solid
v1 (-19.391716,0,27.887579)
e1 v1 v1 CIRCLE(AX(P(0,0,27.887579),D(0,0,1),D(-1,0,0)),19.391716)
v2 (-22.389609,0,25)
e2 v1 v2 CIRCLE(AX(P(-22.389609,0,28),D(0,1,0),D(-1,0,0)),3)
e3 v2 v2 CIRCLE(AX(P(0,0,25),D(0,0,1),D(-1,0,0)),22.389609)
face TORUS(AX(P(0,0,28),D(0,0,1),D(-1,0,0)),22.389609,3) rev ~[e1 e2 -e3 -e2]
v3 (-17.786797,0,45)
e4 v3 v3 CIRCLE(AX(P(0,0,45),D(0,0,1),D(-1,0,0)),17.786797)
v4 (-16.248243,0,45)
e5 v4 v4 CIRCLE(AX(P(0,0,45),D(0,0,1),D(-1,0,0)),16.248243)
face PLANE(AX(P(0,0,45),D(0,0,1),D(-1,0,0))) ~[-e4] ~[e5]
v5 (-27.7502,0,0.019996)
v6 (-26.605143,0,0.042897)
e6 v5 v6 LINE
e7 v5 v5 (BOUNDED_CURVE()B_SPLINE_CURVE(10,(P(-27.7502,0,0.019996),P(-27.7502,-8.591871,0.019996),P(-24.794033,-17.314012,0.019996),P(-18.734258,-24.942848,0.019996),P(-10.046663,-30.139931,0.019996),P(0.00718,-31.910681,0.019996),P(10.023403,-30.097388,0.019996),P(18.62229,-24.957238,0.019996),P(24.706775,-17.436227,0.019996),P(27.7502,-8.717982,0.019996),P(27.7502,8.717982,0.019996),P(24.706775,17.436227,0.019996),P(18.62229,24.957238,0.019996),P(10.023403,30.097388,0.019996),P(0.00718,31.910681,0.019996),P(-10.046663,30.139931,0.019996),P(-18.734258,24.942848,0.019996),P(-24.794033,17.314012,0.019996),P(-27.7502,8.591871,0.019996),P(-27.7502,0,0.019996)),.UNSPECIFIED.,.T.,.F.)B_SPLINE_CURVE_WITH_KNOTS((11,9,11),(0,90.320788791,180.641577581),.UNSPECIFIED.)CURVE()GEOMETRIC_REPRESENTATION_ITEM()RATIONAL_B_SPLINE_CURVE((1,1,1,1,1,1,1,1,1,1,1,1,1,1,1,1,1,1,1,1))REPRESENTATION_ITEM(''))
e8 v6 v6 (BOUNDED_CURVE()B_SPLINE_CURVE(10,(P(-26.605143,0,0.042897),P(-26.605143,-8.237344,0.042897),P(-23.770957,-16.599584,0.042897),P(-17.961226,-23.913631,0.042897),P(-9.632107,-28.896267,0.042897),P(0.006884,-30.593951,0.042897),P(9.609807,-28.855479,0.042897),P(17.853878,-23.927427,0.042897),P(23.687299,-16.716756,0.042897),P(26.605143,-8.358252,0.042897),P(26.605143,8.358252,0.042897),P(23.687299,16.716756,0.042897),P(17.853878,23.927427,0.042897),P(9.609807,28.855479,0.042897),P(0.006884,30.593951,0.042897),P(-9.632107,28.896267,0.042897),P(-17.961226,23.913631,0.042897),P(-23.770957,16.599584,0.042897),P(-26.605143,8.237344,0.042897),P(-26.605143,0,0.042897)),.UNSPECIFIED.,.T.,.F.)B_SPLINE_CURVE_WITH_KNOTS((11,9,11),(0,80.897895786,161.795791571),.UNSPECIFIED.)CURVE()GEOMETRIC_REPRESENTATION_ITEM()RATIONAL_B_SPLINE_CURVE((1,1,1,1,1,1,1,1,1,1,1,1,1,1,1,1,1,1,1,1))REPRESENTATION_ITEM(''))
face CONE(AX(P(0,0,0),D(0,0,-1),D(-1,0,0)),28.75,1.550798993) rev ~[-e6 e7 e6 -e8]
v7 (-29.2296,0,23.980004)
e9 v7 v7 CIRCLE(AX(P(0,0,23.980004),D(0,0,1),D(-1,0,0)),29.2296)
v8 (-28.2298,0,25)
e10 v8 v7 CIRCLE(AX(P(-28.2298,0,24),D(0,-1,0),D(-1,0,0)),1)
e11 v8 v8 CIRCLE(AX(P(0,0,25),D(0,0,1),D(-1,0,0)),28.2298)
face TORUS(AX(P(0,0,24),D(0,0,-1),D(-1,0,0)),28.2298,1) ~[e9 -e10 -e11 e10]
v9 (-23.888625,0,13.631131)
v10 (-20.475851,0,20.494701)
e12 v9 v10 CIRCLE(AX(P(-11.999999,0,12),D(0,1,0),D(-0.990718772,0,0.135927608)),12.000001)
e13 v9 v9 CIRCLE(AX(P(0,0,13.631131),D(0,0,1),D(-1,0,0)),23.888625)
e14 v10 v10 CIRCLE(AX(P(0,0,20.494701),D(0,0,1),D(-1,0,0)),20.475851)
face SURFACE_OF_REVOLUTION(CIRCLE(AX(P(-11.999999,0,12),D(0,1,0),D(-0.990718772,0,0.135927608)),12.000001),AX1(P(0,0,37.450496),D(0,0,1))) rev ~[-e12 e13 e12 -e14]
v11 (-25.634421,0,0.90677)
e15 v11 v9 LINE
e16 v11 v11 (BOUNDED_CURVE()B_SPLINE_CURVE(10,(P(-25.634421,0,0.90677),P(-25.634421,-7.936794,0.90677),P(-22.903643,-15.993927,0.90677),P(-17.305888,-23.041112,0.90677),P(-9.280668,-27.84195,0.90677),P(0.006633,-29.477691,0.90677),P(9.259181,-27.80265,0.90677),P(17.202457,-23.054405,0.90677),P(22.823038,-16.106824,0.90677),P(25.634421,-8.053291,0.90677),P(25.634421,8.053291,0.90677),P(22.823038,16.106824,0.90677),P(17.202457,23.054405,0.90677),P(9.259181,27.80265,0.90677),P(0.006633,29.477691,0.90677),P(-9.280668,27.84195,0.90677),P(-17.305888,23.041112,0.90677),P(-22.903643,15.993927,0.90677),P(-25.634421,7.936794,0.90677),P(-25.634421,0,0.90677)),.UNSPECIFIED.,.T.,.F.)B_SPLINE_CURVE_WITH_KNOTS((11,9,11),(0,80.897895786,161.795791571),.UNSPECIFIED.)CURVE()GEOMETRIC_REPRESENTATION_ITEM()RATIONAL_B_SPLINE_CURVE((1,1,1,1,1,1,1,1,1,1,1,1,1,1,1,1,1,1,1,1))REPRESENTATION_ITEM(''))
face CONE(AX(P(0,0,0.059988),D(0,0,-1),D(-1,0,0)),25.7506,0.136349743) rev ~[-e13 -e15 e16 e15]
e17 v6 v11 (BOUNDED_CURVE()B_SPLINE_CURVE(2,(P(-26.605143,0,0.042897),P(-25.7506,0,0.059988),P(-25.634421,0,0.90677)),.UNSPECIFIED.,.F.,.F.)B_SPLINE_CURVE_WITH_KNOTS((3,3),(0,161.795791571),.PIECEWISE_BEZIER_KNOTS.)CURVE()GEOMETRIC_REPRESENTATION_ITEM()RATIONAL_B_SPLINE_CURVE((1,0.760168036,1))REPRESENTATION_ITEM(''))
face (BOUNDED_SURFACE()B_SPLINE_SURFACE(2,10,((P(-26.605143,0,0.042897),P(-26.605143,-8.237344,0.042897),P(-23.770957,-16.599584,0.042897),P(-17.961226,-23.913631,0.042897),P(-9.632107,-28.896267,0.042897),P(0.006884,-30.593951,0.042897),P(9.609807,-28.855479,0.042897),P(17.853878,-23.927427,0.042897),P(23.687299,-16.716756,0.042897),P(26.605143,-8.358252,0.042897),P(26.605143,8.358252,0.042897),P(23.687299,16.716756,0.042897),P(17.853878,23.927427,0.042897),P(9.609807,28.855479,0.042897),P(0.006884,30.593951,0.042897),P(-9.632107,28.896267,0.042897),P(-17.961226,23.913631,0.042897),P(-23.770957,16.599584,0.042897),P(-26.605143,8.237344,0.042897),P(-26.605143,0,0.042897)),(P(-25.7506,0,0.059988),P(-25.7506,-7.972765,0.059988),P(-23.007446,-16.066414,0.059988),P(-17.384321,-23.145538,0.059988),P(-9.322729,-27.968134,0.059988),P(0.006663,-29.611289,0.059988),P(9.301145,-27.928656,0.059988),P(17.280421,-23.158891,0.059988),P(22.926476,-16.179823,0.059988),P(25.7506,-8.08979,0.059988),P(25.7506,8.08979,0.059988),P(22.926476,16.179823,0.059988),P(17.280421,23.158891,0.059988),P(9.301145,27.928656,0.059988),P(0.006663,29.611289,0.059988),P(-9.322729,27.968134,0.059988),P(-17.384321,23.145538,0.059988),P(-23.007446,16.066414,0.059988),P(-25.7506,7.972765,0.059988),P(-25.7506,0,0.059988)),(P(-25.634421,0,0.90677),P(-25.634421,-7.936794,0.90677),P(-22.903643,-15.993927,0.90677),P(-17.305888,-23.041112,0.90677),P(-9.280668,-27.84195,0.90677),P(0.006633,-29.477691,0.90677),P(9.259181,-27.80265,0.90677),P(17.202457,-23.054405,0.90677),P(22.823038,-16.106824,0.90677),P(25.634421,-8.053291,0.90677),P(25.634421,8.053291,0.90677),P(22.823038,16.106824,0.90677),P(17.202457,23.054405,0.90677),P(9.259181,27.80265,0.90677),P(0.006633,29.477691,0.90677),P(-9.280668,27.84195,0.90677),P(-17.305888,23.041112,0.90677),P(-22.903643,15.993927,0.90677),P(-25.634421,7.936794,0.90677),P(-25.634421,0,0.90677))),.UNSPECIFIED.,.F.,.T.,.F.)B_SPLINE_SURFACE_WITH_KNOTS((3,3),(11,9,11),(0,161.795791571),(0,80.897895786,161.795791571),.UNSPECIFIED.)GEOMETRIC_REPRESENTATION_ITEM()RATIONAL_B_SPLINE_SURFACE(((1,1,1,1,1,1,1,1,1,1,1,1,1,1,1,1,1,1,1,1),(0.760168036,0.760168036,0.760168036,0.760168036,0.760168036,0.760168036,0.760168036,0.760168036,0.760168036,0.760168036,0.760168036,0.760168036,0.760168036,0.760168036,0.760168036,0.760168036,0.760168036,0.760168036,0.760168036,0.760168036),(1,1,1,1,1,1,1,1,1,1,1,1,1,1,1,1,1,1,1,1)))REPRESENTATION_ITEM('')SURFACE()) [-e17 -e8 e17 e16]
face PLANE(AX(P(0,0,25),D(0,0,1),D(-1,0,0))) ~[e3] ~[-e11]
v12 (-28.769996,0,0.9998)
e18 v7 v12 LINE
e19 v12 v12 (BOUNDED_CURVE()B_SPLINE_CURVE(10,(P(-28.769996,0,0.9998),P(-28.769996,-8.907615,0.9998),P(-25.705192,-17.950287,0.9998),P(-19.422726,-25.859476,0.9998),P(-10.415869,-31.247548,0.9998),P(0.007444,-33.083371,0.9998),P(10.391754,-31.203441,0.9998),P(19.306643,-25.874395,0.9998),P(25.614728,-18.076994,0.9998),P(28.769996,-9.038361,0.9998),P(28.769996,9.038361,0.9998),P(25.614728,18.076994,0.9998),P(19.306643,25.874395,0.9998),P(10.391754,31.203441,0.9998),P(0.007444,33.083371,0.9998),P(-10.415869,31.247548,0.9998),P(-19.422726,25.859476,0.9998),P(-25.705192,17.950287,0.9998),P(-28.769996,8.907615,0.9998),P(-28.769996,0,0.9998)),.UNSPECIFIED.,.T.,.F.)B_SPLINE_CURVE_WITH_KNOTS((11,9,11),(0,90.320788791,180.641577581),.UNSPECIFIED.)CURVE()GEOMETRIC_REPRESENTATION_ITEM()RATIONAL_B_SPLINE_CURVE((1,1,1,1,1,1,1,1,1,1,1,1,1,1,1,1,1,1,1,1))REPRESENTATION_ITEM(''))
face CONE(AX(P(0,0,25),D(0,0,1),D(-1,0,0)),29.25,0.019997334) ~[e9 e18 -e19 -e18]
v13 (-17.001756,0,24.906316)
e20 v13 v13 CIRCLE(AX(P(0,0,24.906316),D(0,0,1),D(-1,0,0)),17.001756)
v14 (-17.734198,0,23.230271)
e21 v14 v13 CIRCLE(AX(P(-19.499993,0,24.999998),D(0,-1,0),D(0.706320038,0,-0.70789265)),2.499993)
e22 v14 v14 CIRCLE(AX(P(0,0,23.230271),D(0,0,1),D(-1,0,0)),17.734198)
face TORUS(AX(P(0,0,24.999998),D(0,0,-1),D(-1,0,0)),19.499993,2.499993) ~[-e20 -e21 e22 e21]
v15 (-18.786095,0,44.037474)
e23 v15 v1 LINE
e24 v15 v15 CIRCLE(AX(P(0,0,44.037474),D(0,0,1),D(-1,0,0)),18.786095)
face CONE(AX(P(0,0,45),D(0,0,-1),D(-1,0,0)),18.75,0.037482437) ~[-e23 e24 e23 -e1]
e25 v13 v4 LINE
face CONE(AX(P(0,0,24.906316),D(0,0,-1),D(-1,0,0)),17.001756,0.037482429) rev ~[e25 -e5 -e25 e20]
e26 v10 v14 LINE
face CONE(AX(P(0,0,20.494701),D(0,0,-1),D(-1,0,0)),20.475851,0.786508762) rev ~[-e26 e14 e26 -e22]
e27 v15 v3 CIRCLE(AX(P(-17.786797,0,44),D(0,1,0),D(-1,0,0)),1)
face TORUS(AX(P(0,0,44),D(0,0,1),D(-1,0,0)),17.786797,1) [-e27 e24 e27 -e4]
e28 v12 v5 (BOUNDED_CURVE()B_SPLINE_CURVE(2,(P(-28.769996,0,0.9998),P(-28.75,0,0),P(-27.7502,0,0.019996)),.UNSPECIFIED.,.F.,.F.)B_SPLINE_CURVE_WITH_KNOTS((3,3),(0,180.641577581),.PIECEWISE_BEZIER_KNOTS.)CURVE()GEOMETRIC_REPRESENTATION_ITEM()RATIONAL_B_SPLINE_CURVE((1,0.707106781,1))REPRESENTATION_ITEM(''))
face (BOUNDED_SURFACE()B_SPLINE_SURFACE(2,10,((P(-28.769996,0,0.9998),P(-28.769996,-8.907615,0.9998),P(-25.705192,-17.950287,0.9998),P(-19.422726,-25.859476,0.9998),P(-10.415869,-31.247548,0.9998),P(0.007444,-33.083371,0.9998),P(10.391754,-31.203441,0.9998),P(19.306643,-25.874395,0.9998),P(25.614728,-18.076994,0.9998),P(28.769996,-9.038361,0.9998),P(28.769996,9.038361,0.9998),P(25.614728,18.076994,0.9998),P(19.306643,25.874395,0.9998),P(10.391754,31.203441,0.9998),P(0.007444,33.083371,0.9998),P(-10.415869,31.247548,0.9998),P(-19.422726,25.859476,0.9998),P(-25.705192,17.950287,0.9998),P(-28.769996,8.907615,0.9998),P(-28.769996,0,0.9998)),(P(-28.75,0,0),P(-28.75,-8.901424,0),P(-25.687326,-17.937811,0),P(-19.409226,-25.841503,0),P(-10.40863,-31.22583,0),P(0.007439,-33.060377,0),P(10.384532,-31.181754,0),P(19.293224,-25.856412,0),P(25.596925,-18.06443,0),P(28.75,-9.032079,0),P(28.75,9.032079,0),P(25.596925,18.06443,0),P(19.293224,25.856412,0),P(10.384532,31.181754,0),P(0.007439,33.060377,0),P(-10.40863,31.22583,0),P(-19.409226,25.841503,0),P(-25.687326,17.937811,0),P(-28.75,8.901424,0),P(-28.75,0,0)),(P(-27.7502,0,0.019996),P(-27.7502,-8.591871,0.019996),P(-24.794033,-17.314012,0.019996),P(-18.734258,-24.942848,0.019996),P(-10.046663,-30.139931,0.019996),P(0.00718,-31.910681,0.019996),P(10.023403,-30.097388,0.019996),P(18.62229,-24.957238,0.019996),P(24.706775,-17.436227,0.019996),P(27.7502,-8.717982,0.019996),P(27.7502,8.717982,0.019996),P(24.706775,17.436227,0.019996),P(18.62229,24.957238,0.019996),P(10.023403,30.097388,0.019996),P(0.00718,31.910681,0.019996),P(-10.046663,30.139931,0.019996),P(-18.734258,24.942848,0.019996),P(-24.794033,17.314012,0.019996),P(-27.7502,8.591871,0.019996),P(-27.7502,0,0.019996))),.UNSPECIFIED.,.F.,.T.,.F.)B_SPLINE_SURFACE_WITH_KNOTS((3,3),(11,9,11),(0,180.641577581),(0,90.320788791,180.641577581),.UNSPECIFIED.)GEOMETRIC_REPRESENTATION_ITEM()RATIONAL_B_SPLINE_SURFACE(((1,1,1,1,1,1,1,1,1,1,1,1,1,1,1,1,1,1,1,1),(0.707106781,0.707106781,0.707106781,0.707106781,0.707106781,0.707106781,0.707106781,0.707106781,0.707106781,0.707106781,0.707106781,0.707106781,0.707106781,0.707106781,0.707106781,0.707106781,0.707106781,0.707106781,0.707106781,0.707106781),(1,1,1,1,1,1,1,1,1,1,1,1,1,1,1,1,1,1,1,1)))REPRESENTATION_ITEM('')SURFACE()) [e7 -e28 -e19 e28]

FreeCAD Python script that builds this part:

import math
import FreeCAD as App
import Part
import Sketcher
Q = App.Units.Quantity


def edges_at(feature, points):
    """Names of the edges that pass closest to the given points."""
    edges = feature.Shape.Edges
    near = lambda p: min(range(len(edges)), key=lambda i: edges[i].distToShape(Part.Vertex(*p))[0])
    return sorted({f"Edge{near(p) + 1}" for p in points})

doc = App.newDocument("Part")
body = doc.addObject("PartDesign::Body", "Body")

sketch1 = body.newObject("Sketcher::SketchObject", "Sketch")
sketch1.AttachmentSupport = (doc.getObject("XZ_Plane"), [""])
sketch1.MapMode = "FlatFace"
sketch1.addGeometry([
    Part.LineSegment(App.Vector(-29.2, 25, 0), App.Vector(-28.8, 0, 0)),
    Part.LineSegment(App.Vector(-28.8, 0, 0), App.Vector(-25.8, 0.1, 0)),
    Part.LineSegment(App.Vector(-25.8, 0.1, 0), App.Vector(-23.9, 13.6, 0)),
    Part.ArcOfCircle(Part.Circle(App.Vector(-12, 12, 0), App.Vector(0, 0, 1), 12), math.radians(135), math.radians(172)),
    Part.LineSegment(App.Vector(-20.5, 20.5, 0), App.Vector(-17.7, 23.2, 0)),
    Part.ArcOfCircle(Part.Circle(App.Vector(-19.5, 25, 0), App.Vector(0, 0, 1), 2.5), math.radians(-45), math.radians(-2)),
    Part.LineSegment(App.Vector(-17, 24.9, 0), App.Vector(-16.2, 45, 0)),
    Part.LineSegment(App.Vector(-16.2, 45, 0), App.Vector(-18.8, 45, 0)),
    Part.LineSegment(App.Vector(-18.8, 45, 0), App.Vector(-19.5, 25, 0)),
    Part.LineSegment(App.Vector(-19.5, 25, 0), App.Vector(-29.2, 25, 0)),
], False)
sketch1.addConstraint([
    Sketcher.Constraint("Coincident", 0, 2, 1, 1),
    Sketcher.Constraint("Coincident", 1, 2, 2, 1),
    Sketcher.Constraint("Tangent", 2, 2, 3, 2),
    Sketcher.Constraint("Tangent", 3, 1, 4, 1),
    Sketcher.Constraint("Tangent", 4, 2, 5, 1),
    Sketcher.Constraint("Tangent", 5, 2, 6, 1),
    Sketcher.Constraint("Coincident", 6, 2, 7, 1),
    Sketcher.Constraint("Coincident", 7, 2, 8, 1),
    Sketcher.Constraint("Coincident", 8, 2, 9, 1),
    Sketcher.Constraint("Coincident", 9, 2, 0, 1),
    Sketcher.Constraint("Horizontal", 7),
    Sketcher.Constraint("Horizontal", 9),
    Sketcher.Constraint("Coincident", 8, 2, 5, 3),
    Sketcher.Constraint("PointOnObject", 0, 2, -1),
    Sketcher.Constraint("Perpendicular", 0, 1),
    Sketcher.Constraint("Parallel", 6, 8),
    Sketcher.Constraint("Radius", 3, Q("12.000001 mm")),
    Sketcher.Constraint("Distance", 1, Q("3 mm")),
    Sketcher.Constraint("DistanceX", 3, 3, -1, 1, Q("11.999999 mm")),
    Sketcher.Constraint("DistanceY", -1, 1, 3, 3, Q("12 mm")),
    Sketcher.Constraint("DistanceY", -1, 1, 6, 2, Q("45 mm")),
    Sketcher.Constraint("DistanceY", -1, 1, 8, 2, Q("25 mm")),
    Sketcher.Constraint("DistanceX", 9, 2, 9, 1, Q("9.75 mm")),
    Sketcher.Constraint("DistanceX", 8, 2, -1, 1, Q("19.5 mm")),
    Sketcher.Constraint("DistanceX", 0, 2, -1, 1, Q("28.75 mm")),
    Sketcher.Constraint("DistanceX", 7, 2, -1, 1, Q("18.75 mm")),
    Sketcher.Constraint("Radius", 5, Q("2.499993 mm")),
])
revolution = body.newObject("PartDesign::Revolution", "Revolution")
revolution.Profile = sketch1
revolution.ReferenceAxis = (sketch1, ["V_Axis"])
revolution.Angle = 360
doc.recompute()

fillet = body.newObject("PartDesign::Fillet", "Fillet")
fillet.Base = (revolution, edges_at(revolution, [(19.5, 0, 25)]))
fillet.Radius = 3
doc.recompute()

fillet2 = body.newObject("PartDesign::Fillet", "Fillet001")
fillet2.Base = (fillet, edges_at(fillet, [
    (29.25, 0, 25),
    (18.75, 0, 45),
    (28.75, 0, 0),
    (25.751, 0, 0.06),
]))
fillet2.Radius = 1

doc.recompute()
